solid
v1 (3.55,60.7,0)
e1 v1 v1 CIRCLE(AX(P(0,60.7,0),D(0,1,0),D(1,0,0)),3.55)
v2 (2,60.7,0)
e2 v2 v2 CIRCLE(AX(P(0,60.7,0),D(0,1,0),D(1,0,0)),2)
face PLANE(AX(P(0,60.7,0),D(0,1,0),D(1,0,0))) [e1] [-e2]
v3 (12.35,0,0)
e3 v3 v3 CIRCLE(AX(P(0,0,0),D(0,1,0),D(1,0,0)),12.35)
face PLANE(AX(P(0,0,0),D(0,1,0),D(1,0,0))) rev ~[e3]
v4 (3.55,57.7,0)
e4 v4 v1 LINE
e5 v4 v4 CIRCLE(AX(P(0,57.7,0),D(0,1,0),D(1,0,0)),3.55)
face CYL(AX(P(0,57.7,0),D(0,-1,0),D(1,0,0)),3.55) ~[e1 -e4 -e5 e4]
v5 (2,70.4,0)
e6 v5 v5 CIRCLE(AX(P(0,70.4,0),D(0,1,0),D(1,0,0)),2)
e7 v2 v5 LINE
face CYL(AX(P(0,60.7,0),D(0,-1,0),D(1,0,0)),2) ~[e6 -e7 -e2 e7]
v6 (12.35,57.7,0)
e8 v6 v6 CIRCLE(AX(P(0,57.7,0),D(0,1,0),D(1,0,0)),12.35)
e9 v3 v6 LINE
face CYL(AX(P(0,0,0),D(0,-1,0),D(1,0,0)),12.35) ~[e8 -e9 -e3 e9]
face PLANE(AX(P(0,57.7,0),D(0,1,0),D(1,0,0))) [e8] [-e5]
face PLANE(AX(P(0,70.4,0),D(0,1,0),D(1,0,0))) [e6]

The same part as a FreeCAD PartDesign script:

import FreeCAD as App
import Part
import Sketcher

V = App.Vector

doc = App.newDocument("Part")
body = doc.addObject("PartDesign::Body", "Body")

sketch1 = body.newObject("Sketcher::SketchObject", "Sketch")
sketch1.AttachmentSupport = (doc.getObject("XZ_Plane"), [""])
sketch1.MapMode = "FlatFace"
sketch1.addGeometry(Part.Circle(V(0, 0, 0), V(0, 0, 1), 12.35), False)
sketch1.addConstraint(Sketcher.Constraint("Coincident", 0, 3, -1, 1))
sketch1.addConstraint(Sketcher.Constraint("Diameter", 0, 24.7))
pad1 = body.newObject("PartDesign::Pad", "Pad")
pad1.Profile = sketch1
pad1.Length = 57.7
pad1.Reversed = True

sketch2 = body.newObject("Sketcher::SketchObject", "Sketch001")
sketch2.AttachmentSupport = (doc.getObject("XZ_Plane"), [""])
sketch2.MapMode = "FlatFace"
sketch2.AttachmentOffset = App.Placement(V(0, 0, -57.7), App.Rotation())
sketch2.addGeometry(Part.Circle(V(0, 0, 0), V(0, 0, 1), 3.55), False)
sketch2.addConstraint(Sketcher.Constraint("Coincident", 0, 3, -1, 1))
sketch2.addConstraint(Sketcher.Constraint("Diameter", 0, 7.1))
pad2 = body.newObject("PartDesign::Pad", "Pad001")
pad2.Profile = sketch2
pad2.Length = 3
pad2.Reversed = True

sketch3 = body.newObject("Sketcher::SketchObject", "Sketch002")
sketch3.AttachmentSupport = (doc.getObject("XZ_Plane"), [""])
sketch3.MapMode = "FlatFace"
sketch3.AttachmentOffset = App.Placement(V(0, 0, -60.7), App.Rotation())
sketch3.addGeometry(Part.Circle(V(0, 0, 0), V(0, 0, 1), 2), False)
sketch3.addConstraint(Sketcher.Constraint("Coincident", 0, 3, -1, 1))
sketch3.addConstraint(Sketcher.Constraint("Diameter", 0, 4.0))
pad3 = body.newObject("PartDesign::Pad", "Pad002")
pad3.Profile = sketch3
pad3.Length = 9.7
pad3.Reversed = True

doc.recompute()
